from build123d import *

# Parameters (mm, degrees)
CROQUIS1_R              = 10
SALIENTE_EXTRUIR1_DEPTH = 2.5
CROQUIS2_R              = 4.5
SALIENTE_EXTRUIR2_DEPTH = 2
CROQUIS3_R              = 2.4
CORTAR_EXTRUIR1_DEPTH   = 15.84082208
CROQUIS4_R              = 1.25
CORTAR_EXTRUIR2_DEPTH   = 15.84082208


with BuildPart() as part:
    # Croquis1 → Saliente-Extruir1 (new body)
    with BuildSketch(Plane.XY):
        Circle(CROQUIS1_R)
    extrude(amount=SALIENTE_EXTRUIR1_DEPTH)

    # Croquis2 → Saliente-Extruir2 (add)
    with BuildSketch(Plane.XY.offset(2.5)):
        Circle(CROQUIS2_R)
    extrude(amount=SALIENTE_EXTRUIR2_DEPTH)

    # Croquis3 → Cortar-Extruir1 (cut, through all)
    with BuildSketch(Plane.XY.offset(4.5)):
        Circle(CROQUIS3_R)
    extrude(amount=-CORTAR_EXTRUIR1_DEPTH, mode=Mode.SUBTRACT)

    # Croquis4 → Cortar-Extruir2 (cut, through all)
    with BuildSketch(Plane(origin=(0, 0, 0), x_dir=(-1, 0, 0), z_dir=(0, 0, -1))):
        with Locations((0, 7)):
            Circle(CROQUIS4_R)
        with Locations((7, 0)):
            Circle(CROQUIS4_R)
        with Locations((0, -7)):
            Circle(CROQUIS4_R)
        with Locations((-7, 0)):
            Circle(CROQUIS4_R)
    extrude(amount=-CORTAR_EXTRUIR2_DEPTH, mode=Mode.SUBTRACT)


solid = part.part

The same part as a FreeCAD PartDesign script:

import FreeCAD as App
import Part
import Sketcher

V = App.Vector
Q = App.Units.Quantity

doc = App.newDocument("Part")
params = doc.addObject("Spreadsheet::Sheet", "Params")
for row, (alias, value) in enumerate([
    ("sketch1_diameter", "20 mm"),
    ("pad1_length", "2.5 mm"),
    ("sketch2_diameter", "9 mm"),
    ("pad2_length", "2 mm"),
    ("sketch3_diameter", "4.8 mm"),
    ("sketch4_diameter", "2.5 mm"),
], start=1):
    params.set(f"A{row}", alias)
    params.set(f"B{row}", "=" + value)
    params.setAlias(f"B{row}", alias)

body = doc.addObject("PartDesign::Body", "Body")

sketch1 = body.newObject("Sketcher::SketchObject", "Sketch")
sketch1.AttachmentSupport = (doc.getObject("XY_Plane"), [""])
sketch1.MapMode = "FlatFace"
sketch1.addGeometry(Part.Circle(V(0, 0, 0), V(0, 0, 1), 10), False)
sketch1.addConstraint([
    Sketcher.Constraint("Coincident", 0, 3, -1, 1),
    Sketcher.Constraint("Diameter", 0, Q("20 mm")),
])
sketch1.setExpression("Constraints[1]", "Params.sketch1_diameter")
pad1 = body.newObject("PartDesign::Pad", "Pad")
pad1.Profile = sketch1
pad1.setExpression("Length", "Params.pad1_length")

sketch2 = body.newObject("Sketcher::SketchObject", "Sketch001")
sketch2.AttachmentSupport = (doc.getObject("XY_Plane"), [""])
sketch2.MapMode = "FlatFace"
sketch2.AttachmentOffset = App.Placement(V(0, 0, 2.5), App.Rotation())
sketch2.addGeometry(Part.Circle(V(0, 0, 0), V(0, 0, 1), 4.5), False)
sketch2.addConstraint([
    Sketcher.Constraint("Coincident", 0, 3, -1, 1),
    Sketcher.Constraint("Diameter", 0, Q("9 mm")),
])
sketch2.setExpression("Constraints[1]", "Params.sketch2_diameter")
pad2 = body.newObject("PartDesign::Pad", "Pad001")
pad2.Profile = sketch2
pad2.setExpression("Length", "Params.pad2_length")

sketch3 = body.newObject("Sketcher::SketchObject", "Sketch002")
sketch3.AttachmentSupport = (doc.getObject("XY_Plane"), [""])
sketch3.MapMode = "FlatFace"
sketch3.AttachmentOffset = App.Placement(V(0, 0, 4.5), App.Rotation())
sketch3.addGeometry(Part.Circle(V(0, 0, 0), V(0, 0, 1), 2.4), False)
sketch3.addConstraint([
    Sketcher.Constraint("Coincident", 0, 3, -1, 1),
    Sketcher.Constraint("Diameter", 0, Q("4.8 mm")),
])
sketch3.setExpression("Constraints[1]", "Params.sketch3_diameter")
pocket1 = body.newObject("PartDesign::Pocket", "Pocket")
pocket1.Profile = sketch3
pocket1.Type = "ThroughAll"

sketch4 = body.newObject("Sketcher::SketchObject", "Sketch003")
sketch4.AttachmentSupport = (doc.getObject("XY_Plane"), [""])
sketch4.MapMode = "FlatFace"
sketch4.addGeometry([
    Part.Circle(V(0, 7, 0), V(0, 0, 1), 1.25),
    Part.Circle(V(-7, 0, 0), V(0, 0, 1), 1.25),
    Part.Circle(V(0, -7, 0), V(0, 0, 1), 1.25),
    Part.Circle(V(7, 0, 0), V(0, 0, 1), 1.25),
], False)
sketch4.addConstraint([
    Sketcher.Constraint("Equal", 0, 1),
    Sketcher.Constraint("Equal", 1, 2),
    Sketcher.Constraint("Equal", 2, 3),
    Sketcher.Constraint("Symmetric", 0, 3, 2, 3, -1, 1),
    Sketcher.Constraint("Symmetric", 1, 3, 3, 3, -1, 1),
    Sketcher.Constraint("PointOnObject", 0, 3, -2),
    Sketcher.Constraint("PointOnObject", 1, 3, -1),
    Sketcher.Constraint("Diameter", 0, Q("2.5 mm")),
    Sketcher.Constraint("DistanceY", -1, 1, 0, 3, Q("7 mm")),
    Sketcher.Constraint("DistanceX", 1, 3, -1, 1, Q("7 mm")),
])
sketch4.setExpression("Constraints[7]", "Params.sketch4_diameter")
pocket2 = body.newObject("PartDesign::Pocket", "Pocket001")
pocket2.Profile = sketch4
pocket2.Type = "ThroughAll"
pocket2.Reversed = True

doc.recompute()
